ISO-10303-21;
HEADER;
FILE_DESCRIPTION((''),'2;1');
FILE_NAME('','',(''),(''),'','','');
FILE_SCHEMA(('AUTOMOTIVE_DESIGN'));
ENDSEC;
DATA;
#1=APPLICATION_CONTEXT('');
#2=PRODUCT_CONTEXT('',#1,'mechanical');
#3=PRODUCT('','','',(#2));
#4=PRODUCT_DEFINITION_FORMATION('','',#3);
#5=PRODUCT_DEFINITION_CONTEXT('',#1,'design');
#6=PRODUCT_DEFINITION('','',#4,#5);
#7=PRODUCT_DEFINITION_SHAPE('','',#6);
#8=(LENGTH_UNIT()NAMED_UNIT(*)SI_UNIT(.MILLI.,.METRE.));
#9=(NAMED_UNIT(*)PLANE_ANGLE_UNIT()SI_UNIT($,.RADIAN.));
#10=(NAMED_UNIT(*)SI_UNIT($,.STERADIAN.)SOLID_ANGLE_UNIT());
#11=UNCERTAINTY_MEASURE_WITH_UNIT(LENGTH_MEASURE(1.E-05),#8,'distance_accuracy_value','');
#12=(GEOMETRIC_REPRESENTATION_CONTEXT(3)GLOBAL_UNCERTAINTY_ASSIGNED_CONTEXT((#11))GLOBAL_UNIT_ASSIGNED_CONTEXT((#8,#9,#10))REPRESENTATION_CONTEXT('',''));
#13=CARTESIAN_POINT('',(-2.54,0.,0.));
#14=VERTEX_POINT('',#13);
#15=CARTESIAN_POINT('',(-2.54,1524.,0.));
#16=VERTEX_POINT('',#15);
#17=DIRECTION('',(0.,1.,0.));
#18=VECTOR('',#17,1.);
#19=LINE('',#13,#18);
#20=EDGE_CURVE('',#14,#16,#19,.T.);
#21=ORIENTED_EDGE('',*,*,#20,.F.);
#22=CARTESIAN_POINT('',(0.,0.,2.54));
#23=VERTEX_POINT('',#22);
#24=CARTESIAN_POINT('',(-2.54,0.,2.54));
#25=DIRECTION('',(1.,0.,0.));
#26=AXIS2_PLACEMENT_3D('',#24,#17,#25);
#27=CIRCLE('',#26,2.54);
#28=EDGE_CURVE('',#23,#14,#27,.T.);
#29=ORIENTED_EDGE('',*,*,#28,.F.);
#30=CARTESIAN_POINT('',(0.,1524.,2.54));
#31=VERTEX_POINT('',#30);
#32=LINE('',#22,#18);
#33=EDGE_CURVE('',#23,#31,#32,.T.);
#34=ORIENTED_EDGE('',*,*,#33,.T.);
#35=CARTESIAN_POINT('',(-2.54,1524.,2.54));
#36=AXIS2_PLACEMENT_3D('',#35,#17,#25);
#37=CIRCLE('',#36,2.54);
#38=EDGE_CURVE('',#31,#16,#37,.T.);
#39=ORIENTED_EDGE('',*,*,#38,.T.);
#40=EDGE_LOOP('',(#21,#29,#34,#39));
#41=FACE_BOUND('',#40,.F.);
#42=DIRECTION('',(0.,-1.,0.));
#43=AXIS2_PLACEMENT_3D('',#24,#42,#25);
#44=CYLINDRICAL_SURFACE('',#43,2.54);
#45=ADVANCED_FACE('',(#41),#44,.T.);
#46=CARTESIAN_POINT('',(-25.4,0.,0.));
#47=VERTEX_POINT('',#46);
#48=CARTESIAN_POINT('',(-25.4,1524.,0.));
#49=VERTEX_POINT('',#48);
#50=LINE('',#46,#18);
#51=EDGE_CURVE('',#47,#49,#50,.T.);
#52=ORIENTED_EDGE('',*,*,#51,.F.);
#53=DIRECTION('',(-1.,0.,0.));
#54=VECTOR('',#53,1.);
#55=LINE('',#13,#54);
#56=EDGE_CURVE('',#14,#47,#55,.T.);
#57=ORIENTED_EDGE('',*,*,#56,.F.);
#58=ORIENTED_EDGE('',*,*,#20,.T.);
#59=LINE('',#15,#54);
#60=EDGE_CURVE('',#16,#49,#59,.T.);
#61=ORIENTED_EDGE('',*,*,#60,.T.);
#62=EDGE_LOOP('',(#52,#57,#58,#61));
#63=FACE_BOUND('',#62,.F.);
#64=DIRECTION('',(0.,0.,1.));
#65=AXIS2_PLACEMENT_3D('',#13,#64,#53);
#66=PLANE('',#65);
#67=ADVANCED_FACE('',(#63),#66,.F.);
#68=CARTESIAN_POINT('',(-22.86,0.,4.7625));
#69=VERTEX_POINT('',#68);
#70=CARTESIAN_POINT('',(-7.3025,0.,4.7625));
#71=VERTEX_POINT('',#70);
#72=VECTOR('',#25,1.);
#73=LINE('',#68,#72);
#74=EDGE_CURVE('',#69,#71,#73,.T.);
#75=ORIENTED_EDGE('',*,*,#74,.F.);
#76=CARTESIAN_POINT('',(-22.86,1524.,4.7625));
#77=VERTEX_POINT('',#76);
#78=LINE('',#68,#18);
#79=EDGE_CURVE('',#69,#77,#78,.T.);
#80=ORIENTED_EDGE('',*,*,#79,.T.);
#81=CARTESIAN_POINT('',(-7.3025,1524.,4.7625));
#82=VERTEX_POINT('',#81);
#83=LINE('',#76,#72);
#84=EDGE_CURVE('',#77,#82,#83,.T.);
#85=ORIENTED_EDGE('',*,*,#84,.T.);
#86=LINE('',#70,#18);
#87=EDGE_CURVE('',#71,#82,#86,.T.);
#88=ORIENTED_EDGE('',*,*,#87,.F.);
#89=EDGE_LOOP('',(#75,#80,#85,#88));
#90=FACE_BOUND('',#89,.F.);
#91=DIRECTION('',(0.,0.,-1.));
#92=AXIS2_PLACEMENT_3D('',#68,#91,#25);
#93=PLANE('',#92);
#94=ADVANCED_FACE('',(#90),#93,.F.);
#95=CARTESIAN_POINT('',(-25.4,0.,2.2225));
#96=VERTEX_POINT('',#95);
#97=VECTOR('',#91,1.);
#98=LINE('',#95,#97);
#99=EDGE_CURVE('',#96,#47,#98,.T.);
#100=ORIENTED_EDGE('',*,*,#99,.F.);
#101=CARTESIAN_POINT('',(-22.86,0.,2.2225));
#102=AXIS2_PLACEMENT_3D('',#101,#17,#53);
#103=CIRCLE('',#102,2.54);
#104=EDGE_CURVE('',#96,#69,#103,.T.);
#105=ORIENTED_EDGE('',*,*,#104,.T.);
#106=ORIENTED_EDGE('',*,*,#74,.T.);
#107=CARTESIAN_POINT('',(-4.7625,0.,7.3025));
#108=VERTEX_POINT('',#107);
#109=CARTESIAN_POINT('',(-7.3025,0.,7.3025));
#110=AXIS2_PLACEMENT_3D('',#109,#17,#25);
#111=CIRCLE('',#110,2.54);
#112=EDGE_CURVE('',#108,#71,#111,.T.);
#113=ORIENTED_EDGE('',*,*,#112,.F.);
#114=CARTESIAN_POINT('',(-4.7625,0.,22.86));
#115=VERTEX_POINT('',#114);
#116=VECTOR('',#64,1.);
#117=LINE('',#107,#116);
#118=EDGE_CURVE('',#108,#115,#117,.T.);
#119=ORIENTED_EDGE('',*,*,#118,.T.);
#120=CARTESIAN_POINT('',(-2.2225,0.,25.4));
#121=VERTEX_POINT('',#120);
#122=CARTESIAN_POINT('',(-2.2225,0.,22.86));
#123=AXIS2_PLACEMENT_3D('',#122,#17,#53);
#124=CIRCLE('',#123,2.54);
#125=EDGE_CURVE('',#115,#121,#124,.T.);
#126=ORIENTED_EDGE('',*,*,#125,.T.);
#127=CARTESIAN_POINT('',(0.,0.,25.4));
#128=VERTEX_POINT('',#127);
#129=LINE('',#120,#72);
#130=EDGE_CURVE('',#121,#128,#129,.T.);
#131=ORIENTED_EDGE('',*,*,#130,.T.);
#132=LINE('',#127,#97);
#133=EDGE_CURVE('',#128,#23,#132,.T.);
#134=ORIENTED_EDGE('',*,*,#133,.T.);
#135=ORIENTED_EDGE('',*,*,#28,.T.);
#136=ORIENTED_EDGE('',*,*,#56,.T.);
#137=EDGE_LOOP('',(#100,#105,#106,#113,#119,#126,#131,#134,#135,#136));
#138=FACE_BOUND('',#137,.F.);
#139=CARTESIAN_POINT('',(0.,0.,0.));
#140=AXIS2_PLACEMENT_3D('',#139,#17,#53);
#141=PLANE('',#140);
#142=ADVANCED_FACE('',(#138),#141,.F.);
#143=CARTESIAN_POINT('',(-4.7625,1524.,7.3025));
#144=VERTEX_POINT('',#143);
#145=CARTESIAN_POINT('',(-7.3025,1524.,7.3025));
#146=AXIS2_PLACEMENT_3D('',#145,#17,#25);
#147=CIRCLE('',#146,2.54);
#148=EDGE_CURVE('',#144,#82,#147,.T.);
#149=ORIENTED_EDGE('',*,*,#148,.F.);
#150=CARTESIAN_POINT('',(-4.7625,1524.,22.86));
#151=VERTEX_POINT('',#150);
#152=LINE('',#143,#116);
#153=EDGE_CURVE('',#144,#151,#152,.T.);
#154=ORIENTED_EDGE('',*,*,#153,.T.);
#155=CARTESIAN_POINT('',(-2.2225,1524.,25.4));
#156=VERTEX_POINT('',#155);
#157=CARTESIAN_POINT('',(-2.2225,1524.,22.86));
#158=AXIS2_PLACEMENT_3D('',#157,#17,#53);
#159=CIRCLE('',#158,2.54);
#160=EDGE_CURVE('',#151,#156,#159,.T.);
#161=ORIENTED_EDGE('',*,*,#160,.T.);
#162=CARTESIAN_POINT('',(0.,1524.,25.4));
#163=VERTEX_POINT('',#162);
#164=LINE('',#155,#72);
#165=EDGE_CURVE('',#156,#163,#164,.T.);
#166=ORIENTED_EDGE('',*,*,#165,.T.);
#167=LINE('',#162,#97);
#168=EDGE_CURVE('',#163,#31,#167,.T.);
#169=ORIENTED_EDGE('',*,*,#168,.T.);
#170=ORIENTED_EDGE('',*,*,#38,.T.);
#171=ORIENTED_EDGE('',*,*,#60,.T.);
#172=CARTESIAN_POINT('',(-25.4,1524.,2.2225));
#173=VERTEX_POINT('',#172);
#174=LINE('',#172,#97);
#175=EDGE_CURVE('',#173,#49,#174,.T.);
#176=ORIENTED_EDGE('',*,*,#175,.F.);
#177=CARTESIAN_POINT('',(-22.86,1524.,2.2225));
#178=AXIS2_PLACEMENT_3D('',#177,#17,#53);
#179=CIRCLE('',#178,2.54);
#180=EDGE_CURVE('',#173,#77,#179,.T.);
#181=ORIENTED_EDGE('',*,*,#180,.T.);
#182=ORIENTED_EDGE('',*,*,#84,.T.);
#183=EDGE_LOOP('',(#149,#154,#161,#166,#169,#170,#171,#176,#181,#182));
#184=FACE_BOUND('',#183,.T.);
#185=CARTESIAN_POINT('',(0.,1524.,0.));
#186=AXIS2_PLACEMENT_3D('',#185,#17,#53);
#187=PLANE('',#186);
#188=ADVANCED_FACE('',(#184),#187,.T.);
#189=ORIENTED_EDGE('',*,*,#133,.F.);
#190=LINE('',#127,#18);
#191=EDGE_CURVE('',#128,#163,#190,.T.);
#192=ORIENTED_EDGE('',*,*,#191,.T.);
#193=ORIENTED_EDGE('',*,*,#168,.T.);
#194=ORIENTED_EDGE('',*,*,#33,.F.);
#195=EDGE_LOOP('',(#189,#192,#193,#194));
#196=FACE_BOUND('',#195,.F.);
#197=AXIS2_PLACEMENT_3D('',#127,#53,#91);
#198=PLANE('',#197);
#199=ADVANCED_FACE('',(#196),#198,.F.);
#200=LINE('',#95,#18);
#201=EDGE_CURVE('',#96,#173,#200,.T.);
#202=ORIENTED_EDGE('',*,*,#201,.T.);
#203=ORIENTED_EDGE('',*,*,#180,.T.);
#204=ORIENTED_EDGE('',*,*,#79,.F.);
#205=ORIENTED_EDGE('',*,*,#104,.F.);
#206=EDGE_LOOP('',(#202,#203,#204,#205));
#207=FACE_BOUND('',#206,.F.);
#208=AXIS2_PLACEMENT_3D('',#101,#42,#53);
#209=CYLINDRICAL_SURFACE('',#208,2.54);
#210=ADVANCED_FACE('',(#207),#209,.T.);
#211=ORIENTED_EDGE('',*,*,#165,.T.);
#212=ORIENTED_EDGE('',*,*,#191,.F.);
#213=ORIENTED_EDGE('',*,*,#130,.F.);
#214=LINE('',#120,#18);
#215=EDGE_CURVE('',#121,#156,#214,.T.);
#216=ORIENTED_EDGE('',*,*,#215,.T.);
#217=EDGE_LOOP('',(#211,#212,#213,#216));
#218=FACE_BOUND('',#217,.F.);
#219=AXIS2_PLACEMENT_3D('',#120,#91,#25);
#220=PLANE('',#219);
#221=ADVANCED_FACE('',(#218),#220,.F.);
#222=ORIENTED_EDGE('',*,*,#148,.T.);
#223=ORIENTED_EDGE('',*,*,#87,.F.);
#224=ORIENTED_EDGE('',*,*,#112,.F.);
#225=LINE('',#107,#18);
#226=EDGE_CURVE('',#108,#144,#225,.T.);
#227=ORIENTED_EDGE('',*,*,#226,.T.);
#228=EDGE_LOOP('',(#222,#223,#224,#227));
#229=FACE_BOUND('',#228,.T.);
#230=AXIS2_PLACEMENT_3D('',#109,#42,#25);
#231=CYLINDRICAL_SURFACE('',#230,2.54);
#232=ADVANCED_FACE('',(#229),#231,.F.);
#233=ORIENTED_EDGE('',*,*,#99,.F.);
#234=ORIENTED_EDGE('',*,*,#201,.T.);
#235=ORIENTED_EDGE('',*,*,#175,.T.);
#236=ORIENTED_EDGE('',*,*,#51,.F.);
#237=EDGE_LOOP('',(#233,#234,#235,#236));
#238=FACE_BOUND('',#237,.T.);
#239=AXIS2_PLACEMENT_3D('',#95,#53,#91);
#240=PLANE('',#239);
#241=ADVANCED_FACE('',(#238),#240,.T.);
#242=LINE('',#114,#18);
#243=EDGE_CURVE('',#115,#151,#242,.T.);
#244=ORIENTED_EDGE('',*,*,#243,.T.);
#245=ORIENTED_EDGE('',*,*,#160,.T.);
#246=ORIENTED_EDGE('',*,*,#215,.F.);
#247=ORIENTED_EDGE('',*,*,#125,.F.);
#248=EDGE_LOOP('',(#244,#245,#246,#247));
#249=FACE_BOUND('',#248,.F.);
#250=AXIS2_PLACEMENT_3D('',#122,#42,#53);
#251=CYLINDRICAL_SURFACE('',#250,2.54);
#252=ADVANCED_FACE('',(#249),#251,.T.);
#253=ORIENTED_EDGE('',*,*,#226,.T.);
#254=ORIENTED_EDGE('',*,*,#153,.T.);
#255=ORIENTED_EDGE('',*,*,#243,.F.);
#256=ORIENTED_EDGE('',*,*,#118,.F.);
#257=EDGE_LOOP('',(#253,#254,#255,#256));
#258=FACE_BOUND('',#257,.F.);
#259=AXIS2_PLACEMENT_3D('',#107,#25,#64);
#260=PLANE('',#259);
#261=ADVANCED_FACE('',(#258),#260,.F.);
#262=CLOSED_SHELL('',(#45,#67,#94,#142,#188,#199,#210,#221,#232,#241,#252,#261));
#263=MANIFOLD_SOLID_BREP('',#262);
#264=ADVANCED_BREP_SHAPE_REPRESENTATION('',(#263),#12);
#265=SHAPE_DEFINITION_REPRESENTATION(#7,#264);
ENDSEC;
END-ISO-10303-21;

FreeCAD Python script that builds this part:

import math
import FreeCAD as App
import Part
import Sketcher
from FreeCAD import Vector
Q = App.Units.Quantity

doc = App.newDocument("Part")
body = doc.addObject("PartDesign::Body", "Body")

sketch1 = body.newObject("Sketcher::SketchObject", "Sketch")
sketch1.AttachmentSupport = (doc.getObject("XZ_Plane"), [""])
sketch1.MapMode = "FlatFace"
sketch1.addGeometry([
    Part.ArcOfCircle(Part.Circle(Vector(-2.54, 2.54, 0), Vector(0, 0, 1), 2.54), math.radians(-90), math.radians(0)),
    Part.LineSegment(Vector(-2.54, 0, 0), Vector(-25.4, 0, 0)),
    Part.LineSegment(Vector(-25.4, 0, 0), Vector(-25.4, 2.2225, 0)),
    Part.ArcOfCircle(Part.Circle(Vector(-22.86, 2.2225, 0), Vector(0, 0, 1), 2.54), math.radians(90), math.radians(180)),
    Part.LineSegment(Vector(-22.86, 4.7625, 0), Vector(-7.3025, 4.7625, 0)),
    Part.ArcOfCircle(Part.Circle(Vector(-7.3025, 7.3025, 0), Vector(0, 0, 1), 2.54), math.radians(-90), math.radians(0)),
    Part.LineSegment(Vector(-4.7625, 7.3025, 0), Vector(-4.7625, 22.86, 0)),
    Part.ArcOfCircle(Part.Circle(Vector(-2.2225, 22.86, 0), Vector(0, 0, 1), 2.54), math.radians(90), math.radians(180)),
    Part.LineSegment(Vector(-2.2225, 25.4, 0), Vector(0, 25.4, 0)),
    Part.LineSegment(Vector(0, 25.4, 0), Vector(0, 2.54, 0)),
], False)
sketch1.addConstraint([
    Sketcher.Constraint("Tangent", 0, 1, 1, 1),
    Sketcher.Constraint("Coincident", 1, 2, 2, 1),
    Sketcher.Constraint("Tangent", 2, 2, 3, 2),
    Sketcher.Constraint("Tangent", 3, 1, 4, 1),
    Sketcher.Constraint("Tangent", 4, 2, 5, 1),
    Sketcher.Constraint("Tangent", 5, 2, 6, 1),
    Sketcher.Constraint("Tangent", 6, 2, 7, 2),
    Sketcher.Constraint("Tangent", 7, 1, 8, 1),
    Sketcher.Constraint("Coincident", 8, 2, 9, 1),
    Sketcher.Constraint("Tangent", 9, 2, 0, 2),
    Sketcher.Constraint("Horizontal", 1),
    Sketcher.Constraint("Vertical", 2),
    Sketcher.Constraint("Horizontal", 4),
    Sketcher.Constraint("Vertical", 6),
    Sketcher.Constraint("Horizontal", 8),
    Sketcher.Constraint("Vertical", 9),
    Sketcher.Constraint("Equal", 0, 3),
    Sketcher.Constraint("Equal", 3, 5),
    Sketcher.Constraint("Equal", 5, 7),
    Sketcher.Constraint("PointOnObject", 0, 1, -1),
    Sketcher.Constraint("PointOnObject", 8, 2, -2),
    Sketcher.Constraint("Equal", 8, 2),
    Sketcher.Constraint("Equal", 4, 6),
    Sketcher.Constraint("Radius", 0, Q("0.1 in")),
    Sketcher.Constraint("DistanceX", 1, 2, -1, 1, Q("1 in")),
    Sketcher.Constraint("DistanceY", -1, 1, 3, 1, Q("0.1875 in")),
])
pad1 = body.newObject("PartDesign::Pad", "Pad")
pad1.Profile = sketch1
pad1.Length = Q("60 in")
pad1.Reversed = True

doc.recompute()
